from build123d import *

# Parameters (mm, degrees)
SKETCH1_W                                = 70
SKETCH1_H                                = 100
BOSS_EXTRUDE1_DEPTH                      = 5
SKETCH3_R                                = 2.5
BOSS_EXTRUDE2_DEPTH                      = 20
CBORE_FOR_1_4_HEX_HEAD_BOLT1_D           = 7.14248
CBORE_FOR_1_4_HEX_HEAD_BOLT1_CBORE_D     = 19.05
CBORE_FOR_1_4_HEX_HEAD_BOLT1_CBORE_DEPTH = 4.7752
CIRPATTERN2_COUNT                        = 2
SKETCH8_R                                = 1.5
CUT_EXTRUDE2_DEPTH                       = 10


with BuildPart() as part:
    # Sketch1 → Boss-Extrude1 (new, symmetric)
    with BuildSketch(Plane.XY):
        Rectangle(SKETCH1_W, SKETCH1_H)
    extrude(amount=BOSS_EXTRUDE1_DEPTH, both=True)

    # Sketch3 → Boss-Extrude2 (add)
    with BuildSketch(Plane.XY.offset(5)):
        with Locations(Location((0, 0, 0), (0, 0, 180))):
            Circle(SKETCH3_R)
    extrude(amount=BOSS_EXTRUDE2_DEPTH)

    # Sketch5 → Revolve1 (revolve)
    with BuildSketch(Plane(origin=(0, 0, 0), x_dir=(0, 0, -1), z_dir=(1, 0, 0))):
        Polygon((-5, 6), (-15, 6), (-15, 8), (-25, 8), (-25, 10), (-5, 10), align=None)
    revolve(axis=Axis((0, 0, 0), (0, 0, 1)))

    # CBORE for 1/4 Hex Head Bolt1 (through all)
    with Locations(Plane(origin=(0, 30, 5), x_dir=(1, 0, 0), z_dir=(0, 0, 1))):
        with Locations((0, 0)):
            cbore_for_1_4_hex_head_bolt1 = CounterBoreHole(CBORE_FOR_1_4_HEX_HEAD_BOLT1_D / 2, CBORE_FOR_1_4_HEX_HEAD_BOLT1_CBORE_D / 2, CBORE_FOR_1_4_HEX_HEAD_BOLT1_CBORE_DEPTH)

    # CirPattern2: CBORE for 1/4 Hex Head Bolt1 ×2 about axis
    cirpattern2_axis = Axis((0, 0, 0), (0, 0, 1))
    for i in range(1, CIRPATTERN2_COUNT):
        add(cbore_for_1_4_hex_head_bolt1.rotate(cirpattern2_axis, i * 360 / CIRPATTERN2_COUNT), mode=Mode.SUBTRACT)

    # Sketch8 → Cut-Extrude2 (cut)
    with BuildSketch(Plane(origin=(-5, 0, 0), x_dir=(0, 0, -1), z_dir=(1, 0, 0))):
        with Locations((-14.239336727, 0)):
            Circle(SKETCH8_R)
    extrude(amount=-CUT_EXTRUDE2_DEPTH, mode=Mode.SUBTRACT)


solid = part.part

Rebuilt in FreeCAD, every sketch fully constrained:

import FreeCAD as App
import Part
import Sketcher

V = App.Vector
Q = App.Units.Quantity

doc = App.newDocument("Part")
body = doc.addObject("PartDesign::Body", "Body")

# Sketch on XY plane
sketch1 = body.newObject("Sketcher::SketchObject", "Sketch")
sketch1.AttachmentSupport = (doc.getObject("XY_Plane"), [""])
sketch1.MapMode = "FlatFace"
sketch1.addGeometry([
    Part.LineSegment(V(-35, 50, 0), V(-35, -50, 0)),
    Part.LineSegment(V(-35, -50, 0), V(35, -50, 0)),
    Part.LineSegment(V(35, -50, 0), V(35, 50, 0)),
    Part.LineSegment(V(35, 50, 0), V(-35, 50, 0)),
], False)
sketch1.addConstraint([
    Sketcher.Constraint("Coincident", 0, 2, 1, 1),
    Sketcher.Constraint("Coincident", 1, 2, 2, 1),
    Sketcher.Constraint("Coincident", 2, 2, 3, 1),
    Sketcher.Constraint("Coincident", 3, 2, 0, 1),
    Sketcher.Constraint("Vertical", 0),
    Sketcher.Constraint("Horizontal", 1),
    Sketcher.Constraint("Vertical", 2),
    Sketcher.Constraint("Horizontal", 3),
    Sketcher.Constraint("Symmetric", 0, 2, 2, 2, -1, 1),
    Sketcher.Constraint("DistanceX", 1, 1, 1, 2, Q("70 mm")),
    Sketcher.Constraint("DistanceY", 0, 2, 0, 1, Q("100 mm")),
])
pad1 = body.newObject("PartDesign::Pad", "Pad")
pad1.Profile = sketch1
pad1.Length = 10
pad1.Midplane = True

# Sketch on XY plane
sketch2 = body.newObject("Sketcher::SketchObject", "Sketch001")
sketch2.AttachmentSupport = (doc.getObject("XY_Plane"), [""])
sketch2.MapMode = "FlatFace"
sketch2.AttachmentOffset = App.Placement(V(0, 0, 5), App.Rotation())
sketch2.addGeometry(Part.Circle(V(0, 0, 0), V(0, 0, 1), 2.5), False)
sketch2.addConstraint([
    Sketcher.Constraint("Coincident", 0, 3, -1, 1),
    Sketcher.Constraint("Diameter", 0, Q("5 mm")),
])
pad2 = body.newObject("PartDesign::Pad", "Pad001")
pad2.Profile = sketch2
pad2.Length = 20

# Sketch on YZ plane
sketch3 = body.newObject("Sketcher::SketchObject", "Sketch002")
sketch3.AttachmentSupport = (doc.getObject("YZ_Plane"), [""])
sketch3.MapMode = "FlatFace"
sketch3.addGeometry([
    Part.LineSegment(V(6, 15, 0), V(6, 5, 0)),  # 0
    Part.LineSegment(V(6, 5, 0), V(10, 5, 0)),  # 1
    Part.LineSegment(V(10, 5, 0), V(10, 25, 0)),  # 2
    Part.LineSegment(V(10, 25, 0), V(8, 25, 0)),  # 3
    Part.LineSegment(V(8, 25, 0), V(8, 15, 0)),  # 4
    Part.LineSegment(V(8, 15, 0), V(6, 15, 0)),  # 5
], False)
sketch3.addConstraint([
    Sketcher.Constraint("Coincident", 0, 2, 1, 1),
    Sketcher.Constraint("Coincident", 1, 2, 2, 1),
    Sketcher.Constraint("Coincident", 2, 2, 3, 1),
    Sketcher.Constraint("Coincident", 3, 2, 4, 1),
    Sketcher.Constraint("Coincident", 4, 2, 5, 1),
    Sketcher.Constraint("Coincident", 5, 2, 0, 1),
    Sketcher.Constraint("Vertical", 0),
    Sketcher.Constraint("Horizontal", 1),
    Sketcher.Constraint("Vertical", 2),
    Sketcher.Constraint("Horizontal", 3),
    Sketcher.Constraint("Vertical", 4),
    Sketcher.Constraint("Horizontal", 5),
    Sketcher.Constraint("Equal", 3, 5),
    Sketcher.Constraint("Equal", 0, 4),
    Sketcher.Constraint("DistanceX", 1, 1, 1, 2, Q("4 mm")),
    Sketcher.Constraint("DistanceY", 0, 2, 0, 1, Q("10 mm")),
    Sketcher.Constraint("DistanceX", -1, 1, 0, 2, Q("6 mm")),
    Sketcher.Constraint("DistanceY", -1, 1, 0, 2, Q("5 mm")),
])
revolution = body.newObject("PartDesign::Revolution", "Revolution")
revolution.Profile = sketch3
revolution.ReferenceAxis = (sketch3, ["V_Axis"])
revolution.Angle = 360

# Sketch on XY plane
sketch4 = body.newObject("Sketcher::SketchObject", "Sketch003")
sketch4.AttachmentSupport = (doc.getObject("XY_Plane"), [""])
sketch4.MapMode = "FlatFace"
sketch4.AttachmentOffset = App.Placement(V(0, 0, 5), App.Rotation())
sketch4.addGeometry(Part.Circle(V(0, 30, 0), V(0, 0, 1), 3.6), False)
sketch4.addConstraint([
    Sketcher.Constraint("PointOnObject", 0, 3, -2),
    Sketcher.Constraint("DistanceY", -1, 1, 0, 3, Q("30 mm")),
    Sketcher.Constraint("Diameter", 0, Q("7.14248 mm")),
])
doc.recompute()
hole = body.newObject("PartDesign::Hole", "Hole")
hole.Profile = sketch4
hole.ThreadType = "None"
hole.Diameter = 7.14248
hole.DepthType = "ThroughAll"
hole.HoleCutType = "Counterbore"
hole.HoleCutDiameter = 19.05
hole.HoleCutDepth = 4.7752
doc.recompute()

polarpattern = body.newObject("PartDesign::PolarPattern", "PolarPattern")
polarpattern.Originals = [hole]
polarpattern.Axis = (doc.getObject("Z_Axis"), [""])
polarpattern.Angle = 360
polarpattern.Occurrences = 2
body.Tip = polarpattern

# Sketch on YZ plane
sketch5 = body.newObject("Sketcher::SketchObject", "Sketch004")
sketch5.AttachmentSupport = (doc.getObject("YZ_Plane"), [""])
sketch5.MapMode = "FlatFace"
sketch5.AttachmentOffset = App.Placement(V(0, 0, -5), App.Rotation())
sketch5.addGeometry(Part.Circle(V(0, 14.2, 0), V(0, 0, 1), 1.5), False)
sketch5.addConstraint([
    Sketcher.Constraint("PointOnObject", 0, 3, -2),
    Sketcher.Constraint("Diameter", 0, Q("3 mm")),
    Sketcher.Constraint("DistanceY", -1, 1, 0, 3, Q("14.239337 mm")),
])
pocket1 = body.newObject("PartDesign::Pocket", "Pocket")
pocket1.Profile = sketch5
pocket1.Length = 10

doc.recompute()
